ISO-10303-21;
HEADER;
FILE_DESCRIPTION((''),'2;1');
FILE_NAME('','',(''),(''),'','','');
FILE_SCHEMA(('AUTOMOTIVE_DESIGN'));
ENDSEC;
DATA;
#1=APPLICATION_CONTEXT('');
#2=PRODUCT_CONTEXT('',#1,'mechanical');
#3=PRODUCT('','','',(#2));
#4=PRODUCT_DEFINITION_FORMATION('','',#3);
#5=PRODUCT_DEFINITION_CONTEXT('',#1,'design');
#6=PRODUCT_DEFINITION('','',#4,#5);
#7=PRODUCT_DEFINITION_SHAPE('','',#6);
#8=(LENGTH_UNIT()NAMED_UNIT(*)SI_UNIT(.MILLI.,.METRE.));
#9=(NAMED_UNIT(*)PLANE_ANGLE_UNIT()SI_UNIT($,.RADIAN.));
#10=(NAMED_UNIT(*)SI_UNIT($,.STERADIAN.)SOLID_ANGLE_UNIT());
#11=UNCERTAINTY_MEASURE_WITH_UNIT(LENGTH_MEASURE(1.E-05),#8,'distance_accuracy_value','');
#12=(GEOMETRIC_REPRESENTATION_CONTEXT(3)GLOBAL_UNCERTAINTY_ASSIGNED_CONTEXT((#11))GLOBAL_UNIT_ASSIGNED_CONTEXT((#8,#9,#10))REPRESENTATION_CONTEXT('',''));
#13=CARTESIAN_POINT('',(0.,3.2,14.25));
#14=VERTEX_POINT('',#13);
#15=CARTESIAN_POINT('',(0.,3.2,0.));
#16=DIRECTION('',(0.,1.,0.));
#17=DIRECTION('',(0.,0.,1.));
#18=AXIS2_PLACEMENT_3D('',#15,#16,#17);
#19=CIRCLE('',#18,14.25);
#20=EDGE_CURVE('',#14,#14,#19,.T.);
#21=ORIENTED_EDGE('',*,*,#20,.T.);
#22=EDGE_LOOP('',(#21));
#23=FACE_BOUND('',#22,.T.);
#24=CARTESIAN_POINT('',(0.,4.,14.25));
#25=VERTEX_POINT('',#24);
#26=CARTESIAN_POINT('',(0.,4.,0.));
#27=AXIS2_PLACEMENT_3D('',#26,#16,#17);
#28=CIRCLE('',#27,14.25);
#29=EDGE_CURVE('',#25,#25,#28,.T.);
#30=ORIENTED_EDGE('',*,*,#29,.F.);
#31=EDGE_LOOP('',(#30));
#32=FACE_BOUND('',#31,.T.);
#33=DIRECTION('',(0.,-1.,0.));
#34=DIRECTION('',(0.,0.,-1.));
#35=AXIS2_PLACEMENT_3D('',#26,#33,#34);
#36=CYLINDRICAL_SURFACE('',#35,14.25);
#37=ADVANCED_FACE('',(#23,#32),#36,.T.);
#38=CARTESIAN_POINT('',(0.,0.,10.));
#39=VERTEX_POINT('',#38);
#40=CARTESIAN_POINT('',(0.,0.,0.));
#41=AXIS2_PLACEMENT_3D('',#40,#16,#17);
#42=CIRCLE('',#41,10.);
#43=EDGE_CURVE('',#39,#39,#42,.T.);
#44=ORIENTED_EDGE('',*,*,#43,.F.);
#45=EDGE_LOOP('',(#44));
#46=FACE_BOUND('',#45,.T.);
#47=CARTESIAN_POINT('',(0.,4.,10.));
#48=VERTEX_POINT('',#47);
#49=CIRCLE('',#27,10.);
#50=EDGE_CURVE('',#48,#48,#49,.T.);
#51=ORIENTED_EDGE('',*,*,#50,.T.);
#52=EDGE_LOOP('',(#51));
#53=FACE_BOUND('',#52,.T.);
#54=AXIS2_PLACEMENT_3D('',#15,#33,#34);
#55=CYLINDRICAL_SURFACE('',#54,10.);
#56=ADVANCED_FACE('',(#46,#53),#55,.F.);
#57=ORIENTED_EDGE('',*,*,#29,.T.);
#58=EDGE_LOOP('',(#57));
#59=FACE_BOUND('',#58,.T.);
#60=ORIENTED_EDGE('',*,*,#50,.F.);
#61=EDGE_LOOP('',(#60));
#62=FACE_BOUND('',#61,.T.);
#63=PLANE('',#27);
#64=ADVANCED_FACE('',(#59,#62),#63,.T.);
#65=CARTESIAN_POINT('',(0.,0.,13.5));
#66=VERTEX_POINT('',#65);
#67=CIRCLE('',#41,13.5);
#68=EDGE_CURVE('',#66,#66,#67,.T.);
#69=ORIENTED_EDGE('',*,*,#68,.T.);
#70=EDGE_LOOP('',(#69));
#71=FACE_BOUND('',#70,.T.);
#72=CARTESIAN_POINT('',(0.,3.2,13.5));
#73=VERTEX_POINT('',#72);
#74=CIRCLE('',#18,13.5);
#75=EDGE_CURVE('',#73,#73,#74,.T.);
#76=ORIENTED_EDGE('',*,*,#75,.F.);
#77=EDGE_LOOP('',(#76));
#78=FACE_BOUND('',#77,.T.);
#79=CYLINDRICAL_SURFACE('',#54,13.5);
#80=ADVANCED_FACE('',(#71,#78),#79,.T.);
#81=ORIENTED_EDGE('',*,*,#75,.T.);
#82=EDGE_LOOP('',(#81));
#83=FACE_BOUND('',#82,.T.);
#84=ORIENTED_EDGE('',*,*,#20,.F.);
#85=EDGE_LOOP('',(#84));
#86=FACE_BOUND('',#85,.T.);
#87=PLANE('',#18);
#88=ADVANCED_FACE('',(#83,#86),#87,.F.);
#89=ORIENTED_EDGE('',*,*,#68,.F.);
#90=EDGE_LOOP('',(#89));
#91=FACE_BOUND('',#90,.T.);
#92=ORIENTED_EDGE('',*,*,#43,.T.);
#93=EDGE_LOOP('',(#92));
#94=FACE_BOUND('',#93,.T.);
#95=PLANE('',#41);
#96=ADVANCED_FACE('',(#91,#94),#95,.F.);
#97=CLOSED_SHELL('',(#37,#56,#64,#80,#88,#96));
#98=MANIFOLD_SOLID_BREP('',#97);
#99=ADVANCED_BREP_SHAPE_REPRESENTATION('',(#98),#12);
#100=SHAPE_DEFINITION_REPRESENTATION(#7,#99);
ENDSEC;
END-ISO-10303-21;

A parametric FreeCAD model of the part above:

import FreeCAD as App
import Part
import Sketcher

V = App.Vector
Q = App.Units.Quantity

doc = App.newDocument("Part")
body = doc.addObject("PartDesign::Body", "Body")

# Sketch on XZ plane
sketch1 = doc.addObject("Sketcher::SketchObject", "Sketch")
body.addObject(sketch1)
sketch1.AttachmentSupport = (doc.XZ_Plane, [""])
sketch1.MapMode = "FlatFace"
sketch1.addGeometry([
    Part.Circle(V(0, 0, 0), V(0, 0, 1), 14),
    Part.Circle(V(0, 0, 0), V(0, 0, 1), 10),
], False)
sketch1.addConstraint([
    Sketcher.Constraint("Coincident", 0, 3, -1, 1),
    Sketcher.Constraint("Coincident", 1, 3, -1, 1),
    Sketcher.Constraint("Diameter", 0, Q("27 mm")),
    Sketcher.Constraint("Diameter", 1, Q("20 mm")),
])
pad1 = doc.addObject("PartDesign::Pad", "Pad")
body.addObject(pad1)
pad1.Profile = sketch1
pad1.Length = 3.2
pad1.Reversed = True

# Sketch on XZ plane
sketch2 = doc.addObject("Sketcher::SketchObject", "Sketch001")
body.addObject(sketch2)
sketch2.AttachmentSupport = (doc.XZ_Plane, [""])
sketch2.MapMode = "FlatFace"
sketch2.AttachmentOffset = App.Placement(V(0, 0, -3.2), App.Rotation())
sketch2.addGeometry([
    Part.Circle(V(0, 0, 0), V(0, 0, 1), 14),
    Part.Circle(V(0, 0, 0), V(0, 0, 1), 10),
], False)
sketch2.addConstraint([
    Sketcher.Constraint("Coincident", 0, 3, -1, 1),
    Sketcher.Constraint("Coincident", 1, 3, -1, 1),
    Sketcher.Constraint("Diameter", 1, Q("20 mm")),
    Sketcher.Constraint("Diameter", 0, Q("28.5 mm")),
])
pad2 = doc.addObject("PartDesign::Pad", "Pad001")
body.addObject(pad2)
pad2.Profile = sketch2
pad2.Length = 0.8
pad2.Reversed = True

doc.recompute()
